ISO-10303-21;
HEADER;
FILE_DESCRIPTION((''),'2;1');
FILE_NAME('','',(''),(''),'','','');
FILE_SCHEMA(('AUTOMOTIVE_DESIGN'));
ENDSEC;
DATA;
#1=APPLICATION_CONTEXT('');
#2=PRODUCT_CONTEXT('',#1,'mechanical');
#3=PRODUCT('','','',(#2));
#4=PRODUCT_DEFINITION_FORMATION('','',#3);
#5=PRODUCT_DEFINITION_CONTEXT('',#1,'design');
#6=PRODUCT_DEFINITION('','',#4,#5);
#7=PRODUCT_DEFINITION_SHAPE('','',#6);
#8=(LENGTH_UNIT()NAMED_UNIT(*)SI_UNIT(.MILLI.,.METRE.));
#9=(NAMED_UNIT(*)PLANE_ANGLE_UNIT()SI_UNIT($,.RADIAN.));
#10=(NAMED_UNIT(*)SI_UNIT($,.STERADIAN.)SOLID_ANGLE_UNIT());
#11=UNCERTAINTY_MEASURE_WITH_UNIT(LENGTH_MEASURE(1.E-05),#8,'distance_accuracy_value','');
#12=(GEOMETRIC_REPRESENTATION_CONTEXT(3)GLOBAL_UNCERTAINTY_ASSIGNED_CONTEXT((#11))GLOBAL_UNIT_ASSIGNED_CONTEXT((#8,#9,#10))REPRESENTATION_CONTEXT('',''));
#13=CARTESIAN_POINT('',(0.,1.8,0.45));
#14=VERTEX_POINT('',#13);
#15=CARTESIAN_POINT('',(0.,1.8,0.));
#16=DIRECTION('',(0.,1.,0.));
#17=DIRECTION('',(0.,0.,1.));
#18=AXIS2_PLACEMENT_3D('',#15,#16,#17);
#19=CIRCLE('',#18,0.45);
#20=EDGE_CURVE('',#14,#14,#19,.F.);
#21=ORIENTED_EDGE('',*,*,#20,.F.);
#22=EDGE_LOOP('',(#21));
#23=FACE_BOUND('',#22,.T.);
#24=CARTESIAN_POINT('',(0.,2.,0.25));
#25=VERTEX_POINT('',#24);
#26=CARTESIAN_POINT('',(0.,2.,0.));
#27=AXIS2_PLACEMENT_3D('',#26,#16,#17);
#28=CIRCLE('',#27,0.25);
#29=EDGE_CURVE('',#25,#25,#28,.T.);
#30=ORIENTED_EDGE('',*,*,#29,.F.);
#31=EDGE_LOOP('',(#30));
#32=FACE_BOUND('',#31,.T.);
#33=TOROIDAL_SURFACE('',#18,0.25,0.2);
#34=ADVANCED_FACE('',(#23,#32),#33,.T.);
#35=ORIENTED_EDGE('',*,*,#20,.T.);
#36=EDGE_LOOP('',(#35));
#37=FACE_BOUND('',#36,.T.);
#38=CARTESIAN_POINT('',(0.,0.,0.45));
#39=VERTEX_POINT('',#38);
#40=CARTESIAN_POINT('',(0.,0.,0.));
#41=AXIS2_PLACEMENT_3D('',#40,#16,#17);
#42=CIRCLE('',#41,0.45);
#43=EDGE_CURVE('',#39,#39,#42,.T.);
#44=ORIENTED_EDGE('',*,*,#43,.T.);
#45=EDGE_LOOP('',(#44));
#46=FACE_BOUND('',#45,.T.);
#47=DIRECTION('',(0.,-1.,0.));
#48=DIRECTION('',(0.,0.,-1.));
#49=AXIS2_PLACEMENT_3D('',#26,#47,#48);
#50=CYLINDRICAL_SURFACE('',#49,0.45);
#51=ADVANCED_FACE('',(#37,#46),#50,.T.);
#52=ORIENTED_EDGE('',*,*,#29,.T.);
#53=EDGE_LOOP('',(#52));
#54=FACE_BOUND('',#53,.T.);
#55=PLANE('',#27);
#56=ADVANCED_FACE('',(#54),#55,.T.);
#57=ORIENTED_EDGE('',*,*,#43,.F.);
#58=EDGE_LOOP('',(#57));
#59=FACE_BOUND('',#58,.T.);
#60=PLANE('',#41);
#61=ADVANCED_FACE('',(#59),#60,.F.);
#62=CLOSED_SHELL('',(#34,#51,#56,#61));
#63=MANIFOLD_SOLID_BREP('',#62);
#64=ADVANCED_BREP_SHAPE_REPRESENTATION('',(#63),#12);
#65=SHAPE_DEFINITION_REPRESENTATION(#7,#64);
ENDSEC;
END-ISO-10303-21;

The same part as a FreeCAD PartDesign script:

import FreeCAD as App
import Part
import Sketcher


def edges_at(feature, points):
    """Names of the edges that pass closest to the given points."""
    edges = feature.Shape.Edges
    near = lambda p: min(range(len(edges)), key=lambda i: edges[i].distToShape(Part.Vertex(*p))[0])
    return sorted({f"Edge{near(p) + 1}" for p in points})

doc = App.newDocument("Part")
body = doc.addObject("PartDesign::Body", "Body")

# Sketch on XZ plane
sketch1 = body.newObject("Sketcher::SketchObject", "Sketch")
sketch1.AttachmentSupport = (doc.getObject("XZ_Plane"), [""])
sketch1.MapMode = "FlatFace"
sketch1.addGeometry(Part.Circle(App.Vector(0, 0, 0), App.Vector(0, 0, 1), 0.45), False)
sketch1.addConstraint([
    Sketcher.Constraint("Coincident", 0, 3, -1, 1),
    Sketcher.Constraint("Diameter", 0, 0.9),
])
pad1 = body.newObject("PartDesign::Pad", "Pad")
pad1.Profile = sketch1
pad1.Length = 2
pad1.Reversed = True
doc.recompute()

fillet = body.newObject("PartDesign::Fillet", "Fillet")
fillet.Base = (pad1, edges_at(pad1, [(0, 2, -0.45)]))
fillet.Radius = 0.2

doc.recompute()
